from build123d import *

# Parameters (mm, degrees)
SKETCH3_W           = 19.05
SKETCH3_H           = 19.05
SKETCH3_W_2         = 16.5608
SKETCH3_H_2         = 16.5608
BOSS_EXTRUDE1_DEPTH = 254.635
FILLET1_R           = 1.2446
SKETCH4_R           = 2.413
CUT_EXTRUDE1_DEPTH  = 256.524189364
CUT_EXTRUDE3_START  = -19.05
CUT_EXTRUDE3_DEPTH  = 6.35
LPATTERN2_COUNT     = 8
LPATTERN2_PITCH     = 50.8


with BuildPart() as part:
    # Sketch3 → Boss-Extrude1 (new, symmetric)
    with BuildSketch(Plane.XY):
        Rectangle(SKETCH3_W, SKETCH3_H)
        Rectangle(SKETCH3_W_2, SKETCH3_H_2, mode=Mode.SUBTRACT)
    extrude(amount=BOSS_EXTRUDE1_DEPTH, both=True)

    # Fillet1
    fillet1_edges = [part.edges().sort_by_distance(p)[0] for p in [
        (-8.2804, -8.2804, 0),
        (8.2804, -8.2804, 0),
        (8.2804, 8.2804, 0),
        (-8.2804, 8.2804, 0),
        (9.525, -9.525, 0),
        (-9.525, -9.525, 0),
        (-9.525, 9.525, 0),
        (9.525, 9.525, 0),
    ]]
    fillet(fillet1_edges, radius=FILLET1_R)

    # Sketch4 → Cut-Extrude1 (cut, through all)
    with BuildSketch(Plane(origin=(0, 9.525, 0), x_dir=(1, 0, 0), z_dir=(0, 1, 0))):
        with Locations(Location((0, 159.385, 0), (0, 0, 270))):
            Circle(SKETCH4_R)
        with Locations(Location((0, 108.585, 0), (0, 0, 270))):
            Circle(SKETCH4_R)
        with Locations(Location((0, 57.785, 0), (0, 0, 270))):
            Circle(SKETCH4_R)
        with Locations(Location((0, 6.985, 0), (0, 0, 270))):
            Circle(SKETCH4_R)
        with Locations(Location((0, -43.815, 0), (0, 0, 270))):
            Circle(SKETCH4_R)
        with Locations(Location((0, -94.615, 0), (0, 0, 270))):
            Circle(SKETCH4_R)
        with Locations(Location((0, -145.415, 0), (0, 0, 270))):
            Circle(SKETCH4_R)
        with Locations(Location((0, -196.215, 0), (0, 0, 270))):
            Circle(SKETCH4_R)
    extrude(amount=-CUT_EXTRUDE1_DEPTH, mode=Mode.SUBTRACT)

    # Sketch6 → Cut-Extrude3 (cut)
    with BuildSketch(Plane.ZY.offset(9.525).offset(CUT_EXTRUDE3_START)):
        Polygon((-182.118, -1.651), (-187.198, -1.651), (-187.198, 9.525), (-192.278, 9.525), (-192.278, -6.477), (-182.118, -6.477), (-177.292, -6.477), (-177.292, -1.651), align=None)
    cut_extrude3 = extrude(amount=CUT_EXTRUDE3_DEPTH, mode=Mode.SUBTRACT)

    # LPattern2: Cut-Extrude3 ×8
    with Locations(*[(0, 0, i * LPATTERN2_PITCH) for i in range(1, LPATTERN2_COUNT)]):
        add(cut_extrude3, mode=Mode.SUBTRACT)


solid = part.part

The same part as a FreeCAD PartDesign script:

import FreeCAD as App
import Part
import Sketcher
Q = App.Units.Quantity


def edges_at(feature, points):
    """Names of the edges that pass closest to the given points."""
    edges = feature.Shape.Edges
    near = lambda p: min(range(len(edges)), key=lambda i: edges[i].distToShape(Part.Vertex(*p))[0])
    return sorted({f"Edge{near(p) + 1}" for p in points})

doc = App.newDocument("Part")
body = doc.addObject("PartDesign::Body", "Body")

sketch1 = body.newObject("Sketcher::SketchObject", "Sketch")
sketch1.AttachmentSupport = (doc.getObject("XY_Plane"), [""])
sketch1.MapMode = "FlatFace"
sketch1.addGeometry(Part.LineSegment(App.Vector(-10, 10, 0), App.Vector(-10, -10, 0)), False)
sketch1.addGeometry(Part.LineSegment(App.Vector(-10, -10, 0), App.Vector(10, -10, 0)), False)
sketch1.addGeometry(Part.LineSegment(App.Vector(10, -10, 0), App.Vector(10, 10, 0)), False)
sketch1.addGeometry(Part.LineSegment(App.Vector(10, 10, 0), App.Vector(-10, 10, 0)), False)
sketch1.addGeometry(Part.LineSegment(App.Vector(8, -8, 0), App.Vector(-8, -8, 0)), False)
sketch1.addGeometry(Part.LineSegment(App.Vector(-8, -8, 0), App.Vector(-8, 8, 0)), False)
sketch1.addGeometry(Part.LineSegment(App.Vector(-8, 8, 0), App.Vector(8, 8, 0)), False)
sketch1.addGeometry(Part.LineSegment(App.Vector(8, 8, 0), App.Vector(8, -8, 0)), False)
sketch1.addConstraint(Sketcher.Constraint("Coincident", 0, 2, 1, 1))
sketch1.addConstraint(Sketcher.Constraint("Coincident", 1, 2, 2, 1))
sketch1.addConstraint(Sketcher.Constraint("Coincident", 2, 2, 3, 1))
sketch1.addConstraint(Sketcher.Constraint("Coincident", 3, 2, 0, 1))
sketch1.addConstraint(Sketcher.Constraint("Coincident", 4, 2, 5, 1))
sketch1.addConstraint(Sketcher.Constraint("Coincident", 5, 2, 6, 1))
sketch1.addConstraint(Sketcher.Constraint("Coincident", 6, 2, 7, 1))
sketch1.addConstraint(Sketcher.Constraint("Coincident", 7, 2, 4, 1))
sketch1.addConstraint(Sketcher.Constraint("Vertical", 0))
sketch1.addConstraint(Sketcher.Constraint("Horizontal", 1))
sketch1.addConstraint(Sketcher.Constraint("Vertical", 2))
sketch1.addConstraint(Sketcher.Constraint("Horizontal", 3))
sketch1.addConstraint(Sketcher.Constraint("Horizontal", 4))
sketch1.addConstraint(Sketcher.Constraint("Vertical", 5))
sketch1.addConstraint(Sketcher.Constraint("Horizontal", 6))
sketch1.addConstraint(Sketcher.Constraint("Vertical", 7))
sketch1.addConstraint(Sketcher.Constraint("Symmetric", 0, 2, 2, 2, -1, 1))
sketch1.addConstraint(Sketcher.Constraint("Symmetric", 4, 2, 6, 2, -1, 1))
sketch1.addConstraint(Sketcher.Constraint("Equal", 3, 0))
sketch1.addConstraint(Sketcher.Constraint("Equal", 6, 5))
sketch1.addConstraint(Sketcher.Constraint("DistanceX", 1, 1, 1, 2, Q("0.75 in")))
sketch1.addConstraint(Sketcher.Constraint("DistanceX", 4, 2, 4, 1, Q("0.652 in")))
pad1 = body.newObject("PartDesign::Pad", "Pad")
pad1.Profile = sketch1
pad1.Length = Q("20.05 in")
pad1.Midplane = True
doc.recompute()

fillet = body.newObject("PartDesign::Fillet", "Fillet")
fillet.Base = (pad1, edges_at(pad1, [
    (-8.28, -8.28, 0),
    (8.28, -8.28, 0),
    (8.28, 8.28, 0),
    (-8.28, 8.28, 0),
    (9.525, -9.525, 0),
    (-9.525, -9.525, 0),
    (-9.525, 9.525, 0),
    (9.525, 9.525, 0),
]))
fillet.Radius = Q("0.049 in")

sketch2 = body.newObject("Sketcher::SketchObject", "Sketch001")
sketch2.AttachmentSupport = (doc.getObject("XZ_Plane"), [""])
sketch2.MapMode = "FlatFace"
sketch2.AttachmentOffset = App.Placement(App.Vector(0, 0, -0.375 * 25.4), App.Rotation())
sketch2.addGeometry(Part.Circle(App.Vector(0, -159.4, 0), App.Vector(0, 0, 1), 2.4), False)
sketch2.addGeometry(Part.Circle(App.Vector(0, -108.6, 0), App.Vector(0, 0, 1), 2.4), False)
sketch2.addGeometry(Part.Circle(App.Vector(0, -57.8, 0), App.Vector(0, 0, 1), 2.4), False)
sketch2.addGeometry(Part.Circle(App.Vector(0, -7, 0), App.Vector(0, 0, 1), 2.4), False)
sketch2.addGeometry(Part.Circle(App.Vector(0, 43.8, 0), App.Vector(0, 0, 1), 2.4), False)
sketch2.addGeometry(Part.Circle(App.Vector(0, 94.6, 0), App.Vector(0, 0, 1), 2.4), False)
sketch2.addGeometry(Part.Circle(App.Vector(0, 145.4, 0), App.Vector(0, 0, 1), 2.4), False)
sketch2.addGeometry(Part.Circle(App.Vector(0, 196.2, 0), App.Vector(0, 0, 1), 2.4), False)
sketch2.addConstraint(Sketcher.Constraint("Equal", 0, 1))
sketch2.addConstraint(Sketcher.Constraint("Equal", 1, 2))
sketch2.addConstraint(Sketcher.Constraint("Equal", 2, 3))
sketch2.addConstraint(Sketcher.Constraint("Equal", 3, 4))
sketch2.addConstraint(Sketcher.Constraint("Equal", 4, 5))
sketch2.addConstraint(Sketcher.Constraint("Equal", 5, 6))
sketch2.addConstraint(Sketcher.Constraint("Equal", 6, 7))
sketch2.addConstraint(Sketcher.Constraint("PointOnObject", 0, 3, -2))
sketch2.addConstraint(Sketcher.Constraint("PointOnObject", 1, 3, -2))
sketch2.addConstraint(Sketcher.Constraint("PointOnObject", 2, 3, -2))
sketch2.addConstraint(Sketcher.Constraint("PointOnObject", 3, 3, -2))
sketch2.addConstraint(Sketcher.Constraint("PointOnObject", 4, 3, -2))
sketch2.addConstraint(Sketcher.Constraint("PointOnObject", 5, 3, -2))
sketch2.addConstraint(Sketcher.Constraint("PointOnObject", 6, 3, -2))
sketch2.addConstraint(Sketcher.Constraint("PointOnObject", 7, 3, -2))
sketch2.addConstraint(Sketcher.Constraint("Diameter", 0, Q("0.19 in")))
sketch2.addConstraint(Sketcher.Constraint("DistanceY", 0, 3, 1, 3, Q("2 in")))
sketch2.addConstraint(Sketcher.Constraint("DistanceY", 1, 3, 2, 3, Q("2 in")))
sketch2.addConstraint(Sketcher.Constraint("DistanceY", 2, 3, 3, 3, Q("2 in")))
sketch2.addConstraint(Sketcher.Constraint("DistanceY", 3, 3, 4, 3, Q("2 in")))
sketch2.addConstraint(Sketcher.Constraint("DistanceY", 4, 3, 5, 3, Q("2 in")))
sketch2.addConstraint(Sketcher.Constraint("DistanceY", 5, 3, 6, 3, Q("2 in")))
sketch2.addConstraint(Sketcher.Constraint("DistanceY", 6, 3, 7, 3, Q("2 in")))
sketch2.addConstraint(Sketcher.Constraint("DistanceY", 0, 3, -1, 1, Q("6.275 in")))
pocket1 = body.newObject("PartDesign::Pocket", "Pocket")
pocket1.Profile = sketch2
pocket1.Type = "ThroughAll"
pocket1.Reversed = True

sketch3 = body.newObject("Sketcher::SketchObject", "Sketch002")
sketch3.AttachmentSupport = (doc.getObject("YZ_Plane"), [""])
sketch3.MapMode = "FlatFace"
sketch3.AttachmentOffset = App.Placement(App.Vector(0, 0, 0.375 * 25.4), App.Rotation())
sketch3.addGeometry(Part.LineSegment(App.Vector(-1.7, -187.2, 0), App.Vector(9.5, -187.2, 0)), False)
sketch3.addGeometry(Part.LineSegment(App.Vector(9.5, -187.2, 0), App.Vector(9.5, -192.3, 0)), False)
sketch3.addGeometry(Part.LineSegment(App.Vector(9.5, -192.3, 0), App.Vector(-6.5, -192.3, 0)), False)
sketch3.addGeometry(Part.LineSegment(App.Vector(-6.5, -192.3, 0), App.Vector(-6.5, -177.3, 0)), False)
sketch3.addGeometry(Part.LineSegment(App.Vector(-6.5, -177.3, 0), App.Vector(-1.7, -177.3, 0)), False)
sketch3.addGeometry(Part.LineSegment(App.Vector(-1.7, -177.3, 0), App.Vector(-1.7, -187.2, 0)), False)
sketch3.addConstraint(Sketcher.Constraint("Coincident", 0, 2, 1, 1))
sketch3.addConstraint(Sketcher.Constraint("Coincident", 1, 2, 2, 1))
sketch3.addConstraint(Sketcher.Constraint("Coincident", 2, 2, 3, 1))
sketch3.addConstraint(Sketcher.Constraint("Coincident", 3, 2, 4, 1))
sketch3.addConstraint(Sketcher.Constraint("Coincident", 4, 2, 5, 1))
sketch3.addConstraint(Sketcher.Constraint("Coincident", 5, 2, 0, 1))
sketch3.addConstraint(Sketcher.Constraint("Horizontal", 0))
sketch3.addConstraint(Sketcher.Constraint("Vertical", 1))
sketch3.addConstraint(Sketcher.Constraint("Horizontal", 2))
sketch3.addConstraint(Sketcher.Constraint("Vertical", 3))
sketch3.addConstraint(Sketcher.Constraint("Horizontal", 4))
sketch3.addConstraint(Sketcher.Constraint("Vertical", 5))
sketch3.addConstraint(Sketcher.Constraint("DistanceY", 1, 2, 1, 1, Q("0.2 in")))
sketch3.addConstraint(Sketcher.Constraint("DistanceX", 0, 1, 0, 2, Q("0.44 in")))
sketch3.addConstraint(Sketcher.Constraint("DistanceX", 2, 2, 2, 1, Q("0.63 in")))
sketch3.addConstraint(Sketcher.Constraint("DistanceY", 3, 1, 3, 2, Q("0.59 in")))
sketch3.addConstraint(Sketcher.Constraint("DistanceY", 0, 2, -1, 1, Q("7.37 in")))
sketch3.addConstraint(Sketcher.Constraint("DistanceX", -1, 1, 0, 2, Q("0.375 in")))
pocket2 = body.newObject("PartDesign::Pocket", "Pocket001")
pocket2.Profile = sketch3
pocket2.Length = Q("0.25 in")
doc.recompute()

linearpattern = body.newObject("PartDesign::LinearPattern", "LinearPattern")
linearpattern.Originals = [pocket2]
linearpattern.Direction = (doc.getObject("Z_Axis"), [""])
linearpattern.Mode = "offset"
linearpattern.Offset = Q("2 in")
linearpattern.Occurrences = 8
body.Tip = linearpattern

doc.recompute()
